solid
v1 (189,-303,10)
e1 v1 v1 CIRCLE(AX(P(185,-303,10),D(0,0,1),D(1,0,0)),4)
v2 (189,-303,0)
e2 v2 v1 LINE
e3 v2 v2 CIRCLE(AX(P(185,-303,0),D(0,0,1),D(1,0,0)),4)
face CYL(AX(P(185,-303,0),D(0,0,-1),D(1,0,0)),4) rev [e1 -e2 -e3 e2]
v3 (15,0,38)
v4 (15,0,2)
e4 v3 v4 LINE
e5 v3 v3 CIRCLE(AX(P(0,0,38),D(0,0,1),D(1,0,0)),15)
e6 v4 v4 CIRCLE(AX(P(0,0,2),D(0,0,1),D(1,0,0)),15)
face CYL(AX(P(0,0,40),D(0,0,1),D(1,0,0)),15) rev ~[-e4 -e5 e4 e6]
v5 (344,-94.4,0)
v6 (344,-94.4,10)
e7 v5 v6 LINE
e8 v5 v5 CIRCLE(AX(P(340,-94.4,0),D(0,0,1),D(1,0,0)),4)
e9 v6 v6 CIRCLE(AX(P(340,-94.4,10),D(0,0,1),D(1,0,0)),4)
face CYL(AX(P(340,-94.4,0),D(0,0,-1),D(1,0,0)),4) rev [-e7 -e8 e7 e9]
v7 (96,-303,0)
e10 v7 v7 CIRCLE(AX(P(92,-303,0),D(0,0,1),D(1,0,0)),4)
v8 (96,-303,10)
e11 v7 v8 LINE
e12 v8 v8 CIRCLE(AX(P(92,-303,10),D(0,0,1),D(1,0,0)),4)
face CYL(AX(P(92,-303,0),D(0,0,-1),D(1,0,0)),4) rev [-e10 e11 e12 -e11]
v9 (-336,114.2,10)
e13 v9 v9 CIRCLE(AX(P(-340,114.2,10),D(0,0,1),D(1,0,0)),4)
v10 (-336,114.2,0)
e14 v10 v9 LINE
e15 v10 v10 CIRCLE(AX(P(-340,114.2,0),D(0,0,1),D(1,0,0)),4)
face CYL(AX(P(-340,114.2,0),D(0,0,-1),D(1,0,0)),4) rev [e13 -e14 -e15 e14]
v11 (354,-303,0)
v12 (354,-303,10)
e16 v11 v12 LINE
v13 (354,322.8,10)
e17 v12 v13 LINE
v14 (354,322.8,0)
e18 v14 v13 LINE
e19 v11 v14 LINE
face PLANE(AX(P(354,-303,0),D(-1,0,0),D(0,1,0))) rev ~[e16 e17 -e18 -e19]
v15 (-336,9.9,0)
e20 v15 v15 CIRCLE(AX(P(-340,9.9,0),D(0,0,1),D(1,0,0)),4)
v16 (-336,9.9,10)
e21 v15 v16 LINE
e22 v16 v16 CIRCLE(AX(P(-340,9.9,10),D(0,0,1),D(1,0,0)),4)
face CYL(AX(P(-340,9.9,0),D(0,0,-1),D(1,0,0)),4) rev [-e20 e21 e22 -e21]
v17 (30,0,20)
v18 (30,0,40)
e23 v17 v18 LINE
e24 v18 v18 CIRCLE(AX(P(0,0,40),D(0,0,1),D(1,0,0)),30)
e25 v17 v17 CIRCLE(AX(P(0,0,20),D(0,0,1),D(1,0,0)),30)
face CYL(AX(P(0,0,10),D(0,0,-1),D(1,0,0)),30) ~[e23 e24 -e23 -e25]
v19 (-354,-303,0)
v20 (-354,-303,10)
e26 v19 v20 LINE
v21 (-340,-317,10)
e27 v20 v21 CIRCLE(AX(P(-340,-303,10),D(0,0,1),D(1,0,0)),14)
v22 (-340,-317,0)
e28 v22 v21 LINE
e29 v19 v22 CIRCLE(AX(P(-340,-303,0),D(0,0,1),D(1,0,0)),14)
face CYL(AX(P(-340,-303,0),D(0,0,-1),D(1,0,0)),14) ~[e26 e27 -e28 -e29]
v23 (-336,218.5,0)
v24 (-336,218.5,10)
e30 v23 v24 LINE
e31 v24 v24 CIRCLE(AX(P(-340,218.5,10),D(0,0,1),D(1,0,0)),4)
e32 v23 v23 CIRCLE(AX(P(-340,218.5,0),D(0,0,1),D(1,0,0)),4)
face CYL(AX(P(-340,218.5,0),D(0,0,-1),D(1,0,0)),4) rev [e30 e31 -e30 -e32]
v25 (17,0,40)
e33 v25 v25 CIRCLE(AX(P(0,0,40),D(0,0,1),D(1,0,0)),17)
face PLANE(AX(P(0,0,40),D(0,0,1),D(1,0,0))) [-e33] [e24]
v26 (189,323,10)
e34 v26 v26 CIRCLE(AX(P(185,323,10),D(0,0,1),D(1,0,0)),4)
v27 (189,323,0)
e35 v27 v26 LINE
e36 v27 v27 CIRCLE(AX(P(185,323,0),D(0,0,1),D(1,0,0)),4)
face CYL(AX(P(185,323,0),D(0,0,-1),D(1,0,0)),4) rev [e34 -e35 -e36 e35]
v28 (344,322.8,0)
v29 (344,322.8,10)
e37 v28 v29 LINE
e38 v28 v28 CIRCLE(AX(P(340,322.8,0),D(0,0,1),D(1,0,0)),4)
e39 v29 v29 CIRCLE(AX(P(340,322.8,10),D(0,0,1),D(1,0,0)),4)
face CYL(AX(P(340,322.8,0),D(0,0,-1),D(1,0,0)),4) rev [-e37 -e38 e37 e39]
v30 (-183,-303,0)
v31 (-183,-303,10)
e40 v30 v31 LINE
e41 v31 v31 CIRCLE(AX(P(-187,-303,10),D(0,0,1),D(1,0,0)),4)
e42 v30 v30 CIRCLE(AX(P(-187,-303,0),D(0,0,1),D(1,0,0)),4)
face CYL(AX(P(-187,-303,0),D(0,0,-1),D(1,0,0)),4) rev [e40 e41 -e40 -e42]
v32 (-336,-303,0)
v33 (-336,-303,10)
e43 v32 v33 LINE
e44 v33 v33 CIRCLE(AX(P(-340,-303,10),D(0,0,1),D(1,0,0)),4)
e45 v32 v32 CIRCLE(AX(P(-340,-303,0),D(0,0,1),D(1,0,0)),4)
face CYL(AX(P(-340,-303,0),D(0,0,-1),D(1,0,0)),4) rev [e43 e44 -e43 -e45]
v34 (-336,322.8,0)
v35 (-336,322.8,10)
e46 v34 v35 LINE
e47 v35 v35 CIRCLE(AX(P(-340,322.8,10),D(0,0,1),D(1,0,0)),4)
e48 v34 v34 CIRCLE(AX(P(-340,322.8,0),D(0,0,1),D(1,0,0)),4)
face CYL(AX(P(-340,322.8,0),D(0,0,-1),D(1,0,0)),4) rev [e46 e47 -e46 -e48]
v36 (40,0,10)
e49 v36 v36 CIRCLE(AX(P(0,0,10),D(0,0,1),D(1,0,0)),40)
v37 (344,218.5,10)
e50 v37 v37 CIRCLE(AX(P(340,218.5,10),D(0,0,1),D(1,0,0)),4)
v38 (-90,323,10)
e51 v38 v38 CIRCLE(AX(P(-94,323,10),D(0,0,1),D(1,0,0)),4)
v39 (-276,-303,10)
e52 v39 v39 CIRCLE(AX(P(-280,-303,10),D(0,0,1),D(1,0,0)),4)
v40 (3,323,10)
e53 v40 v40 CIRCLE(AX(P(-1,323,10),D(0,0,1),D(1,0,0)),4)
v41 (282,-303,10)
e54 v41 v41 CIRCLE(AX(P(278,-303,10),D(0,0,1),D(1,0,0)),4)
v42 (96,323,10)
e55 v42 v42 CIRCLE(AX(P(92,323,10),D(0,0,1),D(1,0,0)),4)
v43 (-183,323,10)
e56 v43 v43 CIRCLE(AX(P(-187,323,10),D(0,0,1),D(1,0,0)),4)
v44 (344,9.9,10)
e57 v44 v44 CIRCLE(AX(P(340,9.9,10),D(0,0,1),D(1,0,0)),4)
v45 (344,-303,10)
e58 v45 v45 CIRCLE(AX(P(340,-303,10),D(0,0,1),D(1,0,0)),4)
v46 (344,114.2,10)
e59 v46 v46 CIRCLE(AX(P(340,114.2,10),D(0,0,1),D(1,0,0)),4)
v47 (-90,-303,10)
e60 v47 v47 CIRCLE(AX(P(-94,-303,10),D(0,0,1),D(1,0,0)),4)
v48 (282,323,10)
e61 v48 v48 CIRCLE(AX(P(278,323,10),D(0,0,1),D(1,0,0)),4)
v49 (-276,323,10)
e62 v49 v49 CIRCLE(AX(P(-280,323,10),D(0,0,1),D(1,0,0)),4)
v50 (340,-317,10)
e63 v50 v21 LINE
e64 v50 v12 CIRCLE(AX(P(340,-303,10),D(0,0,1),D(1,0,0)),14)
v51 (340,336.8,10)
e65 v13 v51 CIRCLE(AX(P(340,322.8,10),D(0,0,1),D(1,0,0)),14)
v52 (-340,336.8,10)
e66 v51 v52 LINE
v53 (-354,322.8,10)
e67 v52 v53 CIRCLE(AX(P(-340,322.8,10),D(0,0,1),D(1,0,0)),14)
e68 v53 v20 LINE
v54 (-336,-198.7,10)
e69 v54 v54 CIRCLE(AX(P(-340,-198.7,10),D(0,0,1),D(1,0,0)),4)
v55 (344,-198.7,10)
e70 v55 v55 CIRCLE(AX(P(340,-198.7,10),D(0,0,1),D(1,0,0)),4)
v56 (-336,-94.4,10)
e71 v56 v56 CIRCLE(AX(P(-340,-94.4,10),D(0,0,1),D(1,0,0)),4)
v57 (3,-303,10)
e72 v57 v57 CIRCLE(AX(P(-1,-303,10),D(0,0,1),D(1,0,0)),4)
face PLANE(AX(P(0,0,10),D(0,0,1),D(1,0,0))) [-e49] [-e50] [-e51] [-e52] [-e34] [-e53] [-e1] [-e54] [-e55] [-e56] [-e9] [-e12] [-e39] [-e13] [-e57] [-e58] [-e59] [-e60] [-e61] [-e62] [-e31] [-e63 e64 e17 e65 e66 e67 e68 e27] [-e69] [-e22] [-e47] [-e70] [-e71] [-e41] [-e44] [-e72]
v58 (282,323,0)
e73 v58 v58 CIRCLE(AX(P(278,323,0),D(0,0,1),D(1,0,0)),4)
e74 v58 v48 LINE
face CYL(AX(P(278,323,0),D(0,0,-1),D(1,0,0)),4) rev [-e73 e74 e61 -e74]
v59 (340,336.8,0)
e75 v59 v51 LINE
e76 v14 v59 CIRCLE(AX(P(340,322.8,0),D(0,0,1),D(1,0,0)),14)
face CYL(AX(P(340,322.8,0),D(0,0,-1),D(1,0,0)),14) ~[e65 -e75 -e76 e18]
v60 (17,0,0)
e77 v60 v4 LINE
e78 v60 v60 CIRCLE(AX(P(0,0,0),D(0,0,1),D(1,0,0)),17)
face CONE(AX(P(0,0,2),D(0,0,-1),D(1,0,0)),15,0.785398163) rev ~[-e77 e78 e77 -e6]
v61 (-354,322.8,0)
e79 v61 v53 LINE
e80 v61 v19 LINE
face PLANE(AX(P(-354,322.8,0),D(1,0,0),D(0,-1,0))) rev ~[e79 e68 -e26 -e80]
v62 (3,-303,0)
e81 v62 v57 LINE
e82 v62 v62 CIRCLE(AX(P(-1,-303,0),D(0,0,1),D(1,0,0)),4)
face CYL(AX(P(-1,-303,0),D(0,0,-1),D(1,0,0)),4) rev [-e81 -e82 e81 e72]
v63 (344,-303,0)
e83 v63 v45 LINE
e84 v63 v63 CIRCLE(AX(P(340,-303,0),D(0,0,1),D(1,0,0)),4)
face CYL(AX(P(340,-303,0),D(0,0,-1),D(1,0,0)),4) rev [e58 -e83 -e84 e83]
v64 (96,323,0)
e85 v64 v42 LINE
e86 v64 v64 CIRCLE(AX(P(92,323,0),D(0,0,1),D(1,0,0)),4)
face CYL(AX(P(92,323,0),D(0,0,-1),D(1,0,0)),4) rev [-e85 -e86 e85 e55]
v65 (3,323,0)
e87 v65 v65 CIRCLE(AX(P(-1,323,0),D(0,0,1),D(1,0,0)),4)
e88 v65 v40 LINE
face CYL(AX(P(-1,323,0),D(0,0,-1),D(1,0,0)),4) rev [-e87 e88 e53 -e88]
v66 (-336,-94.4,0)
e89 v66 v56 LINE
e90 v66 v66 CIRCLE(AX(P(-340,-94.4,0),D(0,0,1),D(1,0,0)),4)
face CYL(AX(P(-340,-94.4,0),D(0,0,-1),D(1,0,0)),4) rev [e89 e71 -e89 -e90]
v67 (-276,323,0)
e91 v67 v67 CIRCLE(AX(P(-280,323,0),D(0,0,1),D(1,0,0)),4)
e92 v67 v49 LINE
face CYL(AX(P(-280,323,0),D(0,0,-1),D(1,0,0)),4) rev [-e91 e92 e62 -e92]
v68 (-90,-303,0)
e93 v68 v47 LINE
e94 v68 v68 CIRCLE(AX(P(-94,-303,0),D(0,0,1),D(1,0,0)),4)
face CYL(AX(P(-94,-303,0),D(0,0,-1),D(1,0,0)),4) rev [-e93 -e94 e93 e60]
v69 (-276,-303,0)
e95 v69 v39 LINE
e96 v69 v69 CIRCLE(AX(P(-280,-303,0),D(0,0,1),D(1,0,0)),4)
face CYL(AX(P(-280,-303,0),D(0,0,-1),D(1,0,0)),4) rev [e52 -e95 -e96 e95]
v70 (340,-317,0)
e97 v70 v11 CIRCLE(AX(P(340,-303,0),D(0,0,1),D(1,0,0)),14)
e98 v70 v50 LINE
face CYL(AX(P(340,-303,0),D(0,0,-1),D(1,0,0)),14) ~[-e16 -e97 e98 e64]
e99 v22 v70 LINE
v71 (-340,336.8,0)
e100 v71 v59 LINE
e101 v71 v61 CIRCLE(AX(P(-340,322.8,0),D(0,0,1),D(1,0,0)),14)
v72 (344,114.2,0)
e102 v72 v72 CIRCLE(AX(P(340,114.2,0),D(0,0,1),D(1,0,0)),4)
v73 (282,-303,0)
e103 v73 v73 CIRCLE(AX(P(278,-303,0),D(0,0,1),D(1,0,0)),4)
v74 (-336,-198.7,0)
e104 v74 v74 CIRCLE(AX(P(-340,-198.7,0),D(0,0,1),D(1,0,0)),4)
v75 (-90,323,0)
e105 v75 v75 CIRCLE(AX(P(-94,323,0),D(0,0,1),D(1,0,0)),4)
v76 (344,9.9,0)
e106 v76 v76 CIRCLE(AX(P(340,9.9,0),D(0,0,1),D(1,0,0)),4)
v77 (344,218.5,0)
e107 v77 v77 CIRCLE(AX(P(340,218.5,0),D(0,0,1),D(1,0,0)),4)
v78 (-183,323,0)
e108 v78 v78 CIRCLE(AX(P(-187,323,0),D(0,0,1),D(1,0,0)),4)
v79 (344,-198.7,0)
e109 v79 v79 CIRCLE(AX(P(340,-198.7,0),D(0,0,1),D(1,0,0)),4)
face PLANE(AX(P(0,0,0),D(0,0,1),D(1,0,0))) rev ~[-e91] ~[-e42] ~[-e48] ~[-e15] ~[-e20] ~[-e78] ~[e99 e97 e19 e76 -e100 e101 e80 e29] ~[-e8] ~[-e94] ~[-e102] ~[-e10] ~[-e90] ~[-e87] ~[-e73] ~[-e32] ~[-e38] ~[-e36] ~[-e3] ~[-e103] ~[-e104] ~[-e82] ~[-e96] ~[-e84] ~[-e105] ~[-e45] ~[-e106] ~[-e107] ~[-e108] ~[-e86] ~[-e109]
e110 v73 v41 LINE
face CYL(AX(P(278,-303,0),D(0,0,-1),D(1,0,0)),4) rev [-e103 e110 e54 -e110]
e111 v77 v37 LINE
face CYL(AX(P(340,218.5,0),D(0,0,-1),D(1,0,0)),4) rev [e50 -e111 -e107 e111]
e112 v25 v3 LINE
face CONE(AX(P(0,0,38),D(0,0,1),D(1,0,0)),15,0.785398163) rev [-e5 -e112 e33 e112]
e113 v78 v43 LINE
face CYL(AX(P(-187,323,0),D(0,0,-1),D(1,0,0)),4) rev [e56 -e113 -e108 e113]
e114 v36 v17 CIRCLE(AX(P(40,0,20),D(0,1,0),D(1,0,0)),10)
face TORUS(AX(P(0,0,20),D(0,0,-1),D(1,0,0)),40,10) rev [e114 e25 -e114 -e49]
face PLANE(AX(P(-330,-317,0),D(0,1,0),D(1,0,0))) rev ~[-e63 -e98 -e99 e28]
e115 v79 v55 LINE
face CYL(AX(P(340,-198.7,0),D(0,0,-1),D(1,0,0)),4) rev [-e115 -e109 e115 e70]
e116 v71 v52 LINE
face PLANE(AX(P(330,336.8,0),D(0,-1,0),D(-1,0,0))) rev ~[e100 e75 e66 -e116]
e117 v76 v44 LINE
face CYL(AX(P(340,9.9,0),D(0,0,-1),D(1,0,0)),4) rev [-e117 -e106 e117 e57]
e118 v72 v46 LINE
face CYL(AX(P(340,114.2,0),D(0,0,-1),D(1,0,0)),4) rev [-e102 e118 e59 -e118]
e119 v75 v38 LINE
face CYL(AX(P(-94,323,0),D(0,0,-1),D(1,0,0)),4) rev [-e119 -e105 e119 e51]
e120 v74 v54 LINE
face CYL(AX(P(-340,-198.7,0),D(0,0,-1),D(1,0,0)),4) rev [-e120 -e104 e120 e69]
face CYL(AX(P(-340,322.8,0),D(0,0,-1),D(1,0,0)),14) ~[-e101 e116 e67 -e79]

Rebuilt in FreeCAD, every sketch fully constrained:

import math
import FreeCAD as App
import Part
import Sketcher

V = App.Vector
Q = App.Units.Quantity


def edges_at(feature, points):
    """Names of the edges that pass closest to the given points."""
    edges = feature.Shape.Edges
    near = lambda p: min(range(len(edges)), key=lambda i: edges[i].distToShape(Part.Vertex(*p))[0])
    return sorted({f"Edge{near(p) + 1}" for p in points})

doc = App.newDocument("Part")
params = doc.addObject("Spreadsheet::Sheet", "Params")
for row, (alias, value) in enumerate([
    ("sketch1_diameter", "8 mm"),
    ("sketch1_radius", "14 mm"),
    ("sketch1_width", "680 mm"),
    ("sketch1_height", "625.8 mm"),
    ("pad1_length", "10 mm"),
    ("sketch2_diameter", "60 mm"),
    ("pad2_length", "30 mm"),
    ("fillet_radius", "10 mm"),
    ("sketch3_diameter", "30 mm"),
    ("chamfer_size", "2 mm"),
], start=1):
    params.set(f"A{row}", alias)
    params.set(f"B{row}", "=" + value)
    params.setAlias(f"B{row}", alias)

body = doc.addObject("PartDesign::Body", "Body")

sketch1 = doc.addObject("Sketcher::SketchObject", "Sketch")
body.addObject(sketch1)
sketch1.AttachmentSupport = (doc.XY_Plane, [""])
sketch1.MapMode = "FlatFace"
sketch1.addGeometry([
    Part.ArcOfCircle(Part.Circle(V(340, -303, 0), V(0, 0, 1), 14), math.radians(-90), math.radians(0)),
    Part.LineSegment(V(354, -303, 0), V(354, 322.8, 0)),
    Part.ArcOfCircle(Part.Circle(V(340, 322.8, 0), V(0, 0, 1), 14), math.radians(0), math.radians(90)),
    Part.LineSegment(V(340, 336.8, 0), V(-340, 336.8, 0)),
    Part.ArcOfCircle(Part.Circle(V(-340, 322.8, 0), V(0, 0, 1), 14), math.radians(90), math.radians(180)),
    Part.LineSegment(V(-354, 322.8, 0), V(-354, -303, 0)),
    Part.ArcOfCircle(Part.Circle(V(-340, -303, 0), V(0, 0, 1), 14), math.radians(180), math.radians(270)),
    Part.LineSegment(V(-340, -317, 0), V(340, -317, 0)),
    Part.Circle(V(-280, -303, 0), V(0, 0, 1), 4),
    Part.Circle(V(-187, -303, 0), V(0, 0, 1), 4),
    Part.Circle(V(-94, -303, 0), V(0, 0, 1), 4),
    Part.Circle(V(-1, -303, 0), V(0, 0, 1), 4),
    Part.Circle(V(92, -303, 0), V(0, 0, 1), 4),
    Part.Circle(V(185, -303, 0), V(0, 0, 1), 4),
    Part.Circle(V(278, -303, 0), V(0, 0, 1), 4),
    Part.Circle(V(-340, 218.5, 0), V(0, 0, 1), 4),
    Part.Circle(V(-340, -198.7, 0), V(0, 0, 1), 4),
    Part.Circle(V(-340, -94.4, 0), V(0, 0, 1), 4),
    Part.Circle(V(-340, 9.9, 0), V(0, 0, 1), 4),
    Part.Circle(V(-340, 114.2, 0), V(0, 0, 1), 4),
    Part.Circle(V(340, 218.5, 0), V(0, 0, 1), 4),
    Part.Circle(V(340, 114.2, 0), V(0, 0, 1), 4),
    Part.Circle(V(340, -198.7, 0), V(0, 0, 1), 4),
    Part.Circle(V(340, -94.4, 0), V(0, 0, 1), 4),
    Part.Circle(V(340, 9.9, 0), V(0, 0, 1), 4),
    Part.Circle(V(-340, -303, 0), V(0, 0, 1), 4),
    Part.Circle(V(-340, 322.8, 0), V(0, 0, 1), 4),
    Part.Circle(V(185, 323, 0), V(0, 0, 1), 4),
    Part.Circle(V(278, 323, 0), V(0, 0, 1), 4),
    Part.Circle(V(92, 323, 0), V(0, 0, 1), 4),
    Part.Circle(V(-280, 323, 0), V(0, 0, 1), 4),
    Part.Circle(V(-187, 323, 0), V(0, 0, 1), 4),
    Part.Circle(V(-94, 323, 0), V(0, 0, 1), 4),
    Part.Circle(V(-1, 323, 0), V(0, 0, 1), 4),
    Part.Circle(V(340, 322.8, 0), V(0, 0, 1), 4),
    Part.Circle(V(340, -303, 0), V(0, 0, 1), 4),
], False)
sketch1.addConstraint([
    Sketcher.Constraint("Tangent", 0, 2, 1, 1),
    Sketcher.Constraint("Tangent", 1, 2, 2, 1),
    Sketcher.Constraint("Tangent", 2, 2, 3, 1),
    Sketcher.Constraint("Tangent", 3, 2, 4, 1),
    Sketcher.Constraint("Tangent", 4, 2, 5, 1),
    Sketcher.Constraint("Tangent", 5, 2, 6, 1),
    Sketcher.Constraint("Tangent", 6, 2, 7, 1),
    Sketcher.Constraint("Tangent", 7, 2, 0, 1),
    Sketcher.Constraint("Vertical", 1),
    Sketcher.Constraint("Horizontal", 3),
    Sketcher.Constraint("Vertical", 5),
    Sketcher.Constraint("Horizontal", 7),
    Sketcher.Constraint("Coincident", 25, 3, 6, 3),
    Sketcher.Constraint("Coincident", 26, 3, 4, 3),
    Sketcher.Constraint("Coincident", 34, 3, 2, 3),
    Sketcher.Constraint("Coincident", 35, 3, 0, 3),
    Sketcher.Constraint("Equal", 0, 2),
    Sketcher.Constraint("Equal", 2, 4),
    Sketcher.Constraint("Equal", 4, 6),
    Sketcher.Constraint("Equal", 8, 9),
    Sketcher.Constraint("Equal", 9, 10),
    Sketcher.Constraint("Equal", 10, 11),
    Sketcher.Constraint("Equal", 11, 12),
    Sketcher.Constraint("Equal", 12, 13),
    Sketcher.Constraint("Equal", 13, 14),
    Sketcher.Constraint("Equal", 14, 15),
    Sketcher.Constraint("Equal", 15, 16),
    Sketcher.Constraint("Equal", 16, 17),
    Sketcher.Constraint("Equal", 17, 18),
    Sketcher.Constraint("Equal", 18, 19),
    Sketcher.Constraint("Equal", 19, 20),
    Sketcher.Constraint("Equal", 20, 21),
    Sketcher.Constraint("Equal", 21, 22),
    Sketcher.Constraint("Equal", 22, 23),
    Sketcher.Constraint("Equal", 23, 24),
    Sketcher.Constraint("Equal", 24, 25),
    Sketcher.Constraint("Equal", 25, 26),
    Sketcher.Constraint("Equal", 26, 27),
    Sketcher.Constraint("Equal", 27, 28),
    Sketcher.Constraint("Equal", 28, 29),
    Sketcher.Constraint("Equal", 29, 30),
    Sketcher.Constraint("Equal", 30, 31),
    Sketcher.Constraint("Equal", 31, 32),
    Sketcher.Constraint("Equal", 32, 33),
    Sketcher.Constraint("Equal", 33, 34),
    Sketcher.Constraint("Equal", 34, 35),
    Sketcher.Constraint("Symmetric", 15, 3, 20, 3, -2),
    Sketcher.Constraint("Symmetric", 19, 3, 21, 3, -2),
    Sketcher.Constraint("Symmetric", 16, 3, 22, 3, -2),
    Sketcher.Constraint("Symmetric", 17, 3, 23, 3, -2),
    Sketcher.Constraint("Symmetric", 18, 3, 24, 3, -2),
    Sketcher.Constraint("Horizontal", 6, 3, 8, 3),
    Sketcher.Constraint("Horizontal", 8, 3, 9, 3),
    Sketcher.Constraint("Horizontal", 9, 3, 10, 3),
    Sketcher.Constraint("Horizontal", 10, 3, 11, 3),
    Sketcher.Constraint("Horizontal", 11, 3, 12, 3),
    Sketcher.Constraint("Horizontal", 12, 3, 13, 3),
    Sketcher.Constraint("Horizontal", 13, 3, 14, 3),
    Sketcher.Constraint("Horizontal", 27, 3, 28, 3),
    Sketcher.Constraint("Horizontal", 28, 3, 29, 3),
    Sketcher.Constraint("Horizontal", 29, 3, 30, 3),
    Sketcher.Constraint("Horizontal", 30, 3, 31, 3),
    Sketcher.Constraint("Horizontal", 31, 3, 32, 3),
    Sketcher.Constraint("Horizontal", 32, 3, 33, 3),
    Sketcher.Constraint("Vertical", 6, 3, 15, 3),
    Sketcher.Constraint("Vertical", 15, 3, 16, 3),
    Sketcher.Constraint("Vertical", 16, 3, 17, 3),
    Sketcher.Constraint("Vertical", 17, 3, 18, 3),
    Sketcher.Constraint("Vertical", 18, 3, 19, 3),
    Sketcher.Constraint("Vertical", 2, 3, 20, 3),
    Sketcher.Constraint("Vertical", 13, 3, 27, 3),
    Sketcher.Constraint("Vertical", 14, 3, 28, 3),
    Sketcher.Constraint("Vertical", 12, 3, 29, 3),
    Sketcher.Constraint("Vertical", 8, 3, 30, 3),
    Sketcher.Constraint("Vertical", 9, 3, 31, 3),
    Sketcher.Constraint("Vertical", 10, 3, 32, 3),
    Sketcher.Constraint("Vertical", 11, 3, 33, 3),
    Sketcher.Constraint("Diameter", 8, Q("8 mm")),
    Sketcher.Constraint("Radius", 0, Q("14 mm")),
    Sketcher.Constraint("DistanceX", 3, 2, 3, 1, Q("680 mm")),
    Sketcher.Constraint("DistanceY", 1, 1, 1, 2, Q("625.8 mm")),
    Sketcher.Constraint("DistanceY", 0, 3, -1, 1, Q("303 mm")),
    Sketcher.Constraint("DistanceX", 8, 3, -1, 1, Q("280 mm")),
    Sketcher.Constraint("DistanceX", 9, 3, -1, 1, Q("187 mm")),
    Sketcher.Constraint("DistanceX", 10, 3, -1, 1, Q("94 mm")),
    Sketcher.Constraint("DistanceX", 11, 3, -1, 1, Q("1 mm")),
    Sketcher.Constraint("DistanceX", -1, 1, 12, 3, Q("92 mm")),
    Sketcher.Constraint("DistanceX", -1, 1, 13, 3, Q("185 mm")),
    Sketcher.Constraint("DistanceX", -1, 1, 14, 3, Q("278 mm")),
    Sketcher.Constraint("DistanceY", -1, 1, 27, 3, Q("323 mm")),
    Sketcher.Constraint("DistanceY", -1, 1, 15, 3, Q("218.5 mm")),
    Sketcher.Constraint("DistanceY", 16, 3, -1, 1, Q("198.7 mm")),
    Sketcher.Constraint("DistanceY", 17, 3, -1, 1, Q("94.4 mm")),
    Sketcher.Constraint("DistanceY", -1, 1, 18, 3, Q("9.9 mm")),
    Sketcher.Constraint("DistanceY", -1, 1, 19, 3, Q("114.2 mm")),
])
sketch1.setExpression("Constraints[77]", "Params.sketch1_diameter")
sketch1.setExpression("Constraints[78]", "Params.sketch1_radius")
sketch1.setExpression("Constraints[79]", "Params.sketch1_width")
sketch1.setExpression("Constraints[80]", "Params.sketch1_height")
pad1 = doc.addObject("PartDesign::Pad", "Pad")
body.addObject(pad1)
pad1.Profile = sketch1
pad1.setExpression("Length", "Params.pad1_length")

sketch2 = doc.addObject("Sketcher::SketchObject", "Sketch001")
body.addObject(sketch2)
sketch2.AttachmentSupport = (doc.XY_Plane, [""])
sketch2.MapMode = "FlatFace"
sketch2.AttachmentOffset = App.Placement(V(0, 0, 10), App.Rotation())
sketch2.addGeometry(Part.Circle(V(0, 0, 0), V(0, 0, 1), 30), False)
sketch2.addConstraint([
    Sketcher.Constraint("Coincident", 0, 3, -1, 1),
    Sketcher.Constraint("Diameter", 0, Q("60 mm")),
])
sketch2.setExpression("Constraints[1]", "Params.sketch2_diameter")
pad2 = doc.addObject("PartDesign::Pad", "Pad001")
body.addObject(pad2)
pad2.Profile = sketch2
pad2.setExpression("Length", "Params.pad2_length")
doc.recompute()

fillet = doc.addObject("PartDesign::Fillet", "Fillet")
body.addObject(fillet)
fillet.Base = (pad2, edges_at(pad2, [(-30, 0, 10)]))
fillet.setExpression("Radius", "Params.fillet_radius")

sketch3 = doc.addObject("Sketcher::SketchObject", "Sketch002")
body.addObject(sketch3)
sketch3.AttachmentSupport = (doc.XY_Plane, [""])
sketch3.MapMode = "FlatFace"
sketch3.AttachmentOffset = App.Placement(V(0, 0, 40), App.Rotation())
sketch3.addGeometry(Part.Circle(V(0, 0, 0), V(0, 0, 1), 15), False)
sketch3.addConstraint([
    Sketcher.Constraint("Coincident", 0, 3, -1, 1),
    Sketcher.Constraint("Diameter", 0, Q("30 mm")),
])
sketch3.setExpression("Constraints[1]", "Params.sketch3_diameter")
pocket1 = doc.addObject("PartDesign::Pocket", "Pocket")
body.addObject(pocket1)
pocket1.Profile = sketch3
pocket1.Type = "ThroughAll"
doc.recompute()

chamfer = doc.addObject("PartDesign::Chamfer", "Chamfer")
body.addObject(chamfer)
chamfer.Base = (pocket1, edges_at(pocket1, [(-15, 0, 40), (-15, 0, 0)]))
chamfer.setExpression("Size", "Params.chamfer_size")

doc.recompute()
